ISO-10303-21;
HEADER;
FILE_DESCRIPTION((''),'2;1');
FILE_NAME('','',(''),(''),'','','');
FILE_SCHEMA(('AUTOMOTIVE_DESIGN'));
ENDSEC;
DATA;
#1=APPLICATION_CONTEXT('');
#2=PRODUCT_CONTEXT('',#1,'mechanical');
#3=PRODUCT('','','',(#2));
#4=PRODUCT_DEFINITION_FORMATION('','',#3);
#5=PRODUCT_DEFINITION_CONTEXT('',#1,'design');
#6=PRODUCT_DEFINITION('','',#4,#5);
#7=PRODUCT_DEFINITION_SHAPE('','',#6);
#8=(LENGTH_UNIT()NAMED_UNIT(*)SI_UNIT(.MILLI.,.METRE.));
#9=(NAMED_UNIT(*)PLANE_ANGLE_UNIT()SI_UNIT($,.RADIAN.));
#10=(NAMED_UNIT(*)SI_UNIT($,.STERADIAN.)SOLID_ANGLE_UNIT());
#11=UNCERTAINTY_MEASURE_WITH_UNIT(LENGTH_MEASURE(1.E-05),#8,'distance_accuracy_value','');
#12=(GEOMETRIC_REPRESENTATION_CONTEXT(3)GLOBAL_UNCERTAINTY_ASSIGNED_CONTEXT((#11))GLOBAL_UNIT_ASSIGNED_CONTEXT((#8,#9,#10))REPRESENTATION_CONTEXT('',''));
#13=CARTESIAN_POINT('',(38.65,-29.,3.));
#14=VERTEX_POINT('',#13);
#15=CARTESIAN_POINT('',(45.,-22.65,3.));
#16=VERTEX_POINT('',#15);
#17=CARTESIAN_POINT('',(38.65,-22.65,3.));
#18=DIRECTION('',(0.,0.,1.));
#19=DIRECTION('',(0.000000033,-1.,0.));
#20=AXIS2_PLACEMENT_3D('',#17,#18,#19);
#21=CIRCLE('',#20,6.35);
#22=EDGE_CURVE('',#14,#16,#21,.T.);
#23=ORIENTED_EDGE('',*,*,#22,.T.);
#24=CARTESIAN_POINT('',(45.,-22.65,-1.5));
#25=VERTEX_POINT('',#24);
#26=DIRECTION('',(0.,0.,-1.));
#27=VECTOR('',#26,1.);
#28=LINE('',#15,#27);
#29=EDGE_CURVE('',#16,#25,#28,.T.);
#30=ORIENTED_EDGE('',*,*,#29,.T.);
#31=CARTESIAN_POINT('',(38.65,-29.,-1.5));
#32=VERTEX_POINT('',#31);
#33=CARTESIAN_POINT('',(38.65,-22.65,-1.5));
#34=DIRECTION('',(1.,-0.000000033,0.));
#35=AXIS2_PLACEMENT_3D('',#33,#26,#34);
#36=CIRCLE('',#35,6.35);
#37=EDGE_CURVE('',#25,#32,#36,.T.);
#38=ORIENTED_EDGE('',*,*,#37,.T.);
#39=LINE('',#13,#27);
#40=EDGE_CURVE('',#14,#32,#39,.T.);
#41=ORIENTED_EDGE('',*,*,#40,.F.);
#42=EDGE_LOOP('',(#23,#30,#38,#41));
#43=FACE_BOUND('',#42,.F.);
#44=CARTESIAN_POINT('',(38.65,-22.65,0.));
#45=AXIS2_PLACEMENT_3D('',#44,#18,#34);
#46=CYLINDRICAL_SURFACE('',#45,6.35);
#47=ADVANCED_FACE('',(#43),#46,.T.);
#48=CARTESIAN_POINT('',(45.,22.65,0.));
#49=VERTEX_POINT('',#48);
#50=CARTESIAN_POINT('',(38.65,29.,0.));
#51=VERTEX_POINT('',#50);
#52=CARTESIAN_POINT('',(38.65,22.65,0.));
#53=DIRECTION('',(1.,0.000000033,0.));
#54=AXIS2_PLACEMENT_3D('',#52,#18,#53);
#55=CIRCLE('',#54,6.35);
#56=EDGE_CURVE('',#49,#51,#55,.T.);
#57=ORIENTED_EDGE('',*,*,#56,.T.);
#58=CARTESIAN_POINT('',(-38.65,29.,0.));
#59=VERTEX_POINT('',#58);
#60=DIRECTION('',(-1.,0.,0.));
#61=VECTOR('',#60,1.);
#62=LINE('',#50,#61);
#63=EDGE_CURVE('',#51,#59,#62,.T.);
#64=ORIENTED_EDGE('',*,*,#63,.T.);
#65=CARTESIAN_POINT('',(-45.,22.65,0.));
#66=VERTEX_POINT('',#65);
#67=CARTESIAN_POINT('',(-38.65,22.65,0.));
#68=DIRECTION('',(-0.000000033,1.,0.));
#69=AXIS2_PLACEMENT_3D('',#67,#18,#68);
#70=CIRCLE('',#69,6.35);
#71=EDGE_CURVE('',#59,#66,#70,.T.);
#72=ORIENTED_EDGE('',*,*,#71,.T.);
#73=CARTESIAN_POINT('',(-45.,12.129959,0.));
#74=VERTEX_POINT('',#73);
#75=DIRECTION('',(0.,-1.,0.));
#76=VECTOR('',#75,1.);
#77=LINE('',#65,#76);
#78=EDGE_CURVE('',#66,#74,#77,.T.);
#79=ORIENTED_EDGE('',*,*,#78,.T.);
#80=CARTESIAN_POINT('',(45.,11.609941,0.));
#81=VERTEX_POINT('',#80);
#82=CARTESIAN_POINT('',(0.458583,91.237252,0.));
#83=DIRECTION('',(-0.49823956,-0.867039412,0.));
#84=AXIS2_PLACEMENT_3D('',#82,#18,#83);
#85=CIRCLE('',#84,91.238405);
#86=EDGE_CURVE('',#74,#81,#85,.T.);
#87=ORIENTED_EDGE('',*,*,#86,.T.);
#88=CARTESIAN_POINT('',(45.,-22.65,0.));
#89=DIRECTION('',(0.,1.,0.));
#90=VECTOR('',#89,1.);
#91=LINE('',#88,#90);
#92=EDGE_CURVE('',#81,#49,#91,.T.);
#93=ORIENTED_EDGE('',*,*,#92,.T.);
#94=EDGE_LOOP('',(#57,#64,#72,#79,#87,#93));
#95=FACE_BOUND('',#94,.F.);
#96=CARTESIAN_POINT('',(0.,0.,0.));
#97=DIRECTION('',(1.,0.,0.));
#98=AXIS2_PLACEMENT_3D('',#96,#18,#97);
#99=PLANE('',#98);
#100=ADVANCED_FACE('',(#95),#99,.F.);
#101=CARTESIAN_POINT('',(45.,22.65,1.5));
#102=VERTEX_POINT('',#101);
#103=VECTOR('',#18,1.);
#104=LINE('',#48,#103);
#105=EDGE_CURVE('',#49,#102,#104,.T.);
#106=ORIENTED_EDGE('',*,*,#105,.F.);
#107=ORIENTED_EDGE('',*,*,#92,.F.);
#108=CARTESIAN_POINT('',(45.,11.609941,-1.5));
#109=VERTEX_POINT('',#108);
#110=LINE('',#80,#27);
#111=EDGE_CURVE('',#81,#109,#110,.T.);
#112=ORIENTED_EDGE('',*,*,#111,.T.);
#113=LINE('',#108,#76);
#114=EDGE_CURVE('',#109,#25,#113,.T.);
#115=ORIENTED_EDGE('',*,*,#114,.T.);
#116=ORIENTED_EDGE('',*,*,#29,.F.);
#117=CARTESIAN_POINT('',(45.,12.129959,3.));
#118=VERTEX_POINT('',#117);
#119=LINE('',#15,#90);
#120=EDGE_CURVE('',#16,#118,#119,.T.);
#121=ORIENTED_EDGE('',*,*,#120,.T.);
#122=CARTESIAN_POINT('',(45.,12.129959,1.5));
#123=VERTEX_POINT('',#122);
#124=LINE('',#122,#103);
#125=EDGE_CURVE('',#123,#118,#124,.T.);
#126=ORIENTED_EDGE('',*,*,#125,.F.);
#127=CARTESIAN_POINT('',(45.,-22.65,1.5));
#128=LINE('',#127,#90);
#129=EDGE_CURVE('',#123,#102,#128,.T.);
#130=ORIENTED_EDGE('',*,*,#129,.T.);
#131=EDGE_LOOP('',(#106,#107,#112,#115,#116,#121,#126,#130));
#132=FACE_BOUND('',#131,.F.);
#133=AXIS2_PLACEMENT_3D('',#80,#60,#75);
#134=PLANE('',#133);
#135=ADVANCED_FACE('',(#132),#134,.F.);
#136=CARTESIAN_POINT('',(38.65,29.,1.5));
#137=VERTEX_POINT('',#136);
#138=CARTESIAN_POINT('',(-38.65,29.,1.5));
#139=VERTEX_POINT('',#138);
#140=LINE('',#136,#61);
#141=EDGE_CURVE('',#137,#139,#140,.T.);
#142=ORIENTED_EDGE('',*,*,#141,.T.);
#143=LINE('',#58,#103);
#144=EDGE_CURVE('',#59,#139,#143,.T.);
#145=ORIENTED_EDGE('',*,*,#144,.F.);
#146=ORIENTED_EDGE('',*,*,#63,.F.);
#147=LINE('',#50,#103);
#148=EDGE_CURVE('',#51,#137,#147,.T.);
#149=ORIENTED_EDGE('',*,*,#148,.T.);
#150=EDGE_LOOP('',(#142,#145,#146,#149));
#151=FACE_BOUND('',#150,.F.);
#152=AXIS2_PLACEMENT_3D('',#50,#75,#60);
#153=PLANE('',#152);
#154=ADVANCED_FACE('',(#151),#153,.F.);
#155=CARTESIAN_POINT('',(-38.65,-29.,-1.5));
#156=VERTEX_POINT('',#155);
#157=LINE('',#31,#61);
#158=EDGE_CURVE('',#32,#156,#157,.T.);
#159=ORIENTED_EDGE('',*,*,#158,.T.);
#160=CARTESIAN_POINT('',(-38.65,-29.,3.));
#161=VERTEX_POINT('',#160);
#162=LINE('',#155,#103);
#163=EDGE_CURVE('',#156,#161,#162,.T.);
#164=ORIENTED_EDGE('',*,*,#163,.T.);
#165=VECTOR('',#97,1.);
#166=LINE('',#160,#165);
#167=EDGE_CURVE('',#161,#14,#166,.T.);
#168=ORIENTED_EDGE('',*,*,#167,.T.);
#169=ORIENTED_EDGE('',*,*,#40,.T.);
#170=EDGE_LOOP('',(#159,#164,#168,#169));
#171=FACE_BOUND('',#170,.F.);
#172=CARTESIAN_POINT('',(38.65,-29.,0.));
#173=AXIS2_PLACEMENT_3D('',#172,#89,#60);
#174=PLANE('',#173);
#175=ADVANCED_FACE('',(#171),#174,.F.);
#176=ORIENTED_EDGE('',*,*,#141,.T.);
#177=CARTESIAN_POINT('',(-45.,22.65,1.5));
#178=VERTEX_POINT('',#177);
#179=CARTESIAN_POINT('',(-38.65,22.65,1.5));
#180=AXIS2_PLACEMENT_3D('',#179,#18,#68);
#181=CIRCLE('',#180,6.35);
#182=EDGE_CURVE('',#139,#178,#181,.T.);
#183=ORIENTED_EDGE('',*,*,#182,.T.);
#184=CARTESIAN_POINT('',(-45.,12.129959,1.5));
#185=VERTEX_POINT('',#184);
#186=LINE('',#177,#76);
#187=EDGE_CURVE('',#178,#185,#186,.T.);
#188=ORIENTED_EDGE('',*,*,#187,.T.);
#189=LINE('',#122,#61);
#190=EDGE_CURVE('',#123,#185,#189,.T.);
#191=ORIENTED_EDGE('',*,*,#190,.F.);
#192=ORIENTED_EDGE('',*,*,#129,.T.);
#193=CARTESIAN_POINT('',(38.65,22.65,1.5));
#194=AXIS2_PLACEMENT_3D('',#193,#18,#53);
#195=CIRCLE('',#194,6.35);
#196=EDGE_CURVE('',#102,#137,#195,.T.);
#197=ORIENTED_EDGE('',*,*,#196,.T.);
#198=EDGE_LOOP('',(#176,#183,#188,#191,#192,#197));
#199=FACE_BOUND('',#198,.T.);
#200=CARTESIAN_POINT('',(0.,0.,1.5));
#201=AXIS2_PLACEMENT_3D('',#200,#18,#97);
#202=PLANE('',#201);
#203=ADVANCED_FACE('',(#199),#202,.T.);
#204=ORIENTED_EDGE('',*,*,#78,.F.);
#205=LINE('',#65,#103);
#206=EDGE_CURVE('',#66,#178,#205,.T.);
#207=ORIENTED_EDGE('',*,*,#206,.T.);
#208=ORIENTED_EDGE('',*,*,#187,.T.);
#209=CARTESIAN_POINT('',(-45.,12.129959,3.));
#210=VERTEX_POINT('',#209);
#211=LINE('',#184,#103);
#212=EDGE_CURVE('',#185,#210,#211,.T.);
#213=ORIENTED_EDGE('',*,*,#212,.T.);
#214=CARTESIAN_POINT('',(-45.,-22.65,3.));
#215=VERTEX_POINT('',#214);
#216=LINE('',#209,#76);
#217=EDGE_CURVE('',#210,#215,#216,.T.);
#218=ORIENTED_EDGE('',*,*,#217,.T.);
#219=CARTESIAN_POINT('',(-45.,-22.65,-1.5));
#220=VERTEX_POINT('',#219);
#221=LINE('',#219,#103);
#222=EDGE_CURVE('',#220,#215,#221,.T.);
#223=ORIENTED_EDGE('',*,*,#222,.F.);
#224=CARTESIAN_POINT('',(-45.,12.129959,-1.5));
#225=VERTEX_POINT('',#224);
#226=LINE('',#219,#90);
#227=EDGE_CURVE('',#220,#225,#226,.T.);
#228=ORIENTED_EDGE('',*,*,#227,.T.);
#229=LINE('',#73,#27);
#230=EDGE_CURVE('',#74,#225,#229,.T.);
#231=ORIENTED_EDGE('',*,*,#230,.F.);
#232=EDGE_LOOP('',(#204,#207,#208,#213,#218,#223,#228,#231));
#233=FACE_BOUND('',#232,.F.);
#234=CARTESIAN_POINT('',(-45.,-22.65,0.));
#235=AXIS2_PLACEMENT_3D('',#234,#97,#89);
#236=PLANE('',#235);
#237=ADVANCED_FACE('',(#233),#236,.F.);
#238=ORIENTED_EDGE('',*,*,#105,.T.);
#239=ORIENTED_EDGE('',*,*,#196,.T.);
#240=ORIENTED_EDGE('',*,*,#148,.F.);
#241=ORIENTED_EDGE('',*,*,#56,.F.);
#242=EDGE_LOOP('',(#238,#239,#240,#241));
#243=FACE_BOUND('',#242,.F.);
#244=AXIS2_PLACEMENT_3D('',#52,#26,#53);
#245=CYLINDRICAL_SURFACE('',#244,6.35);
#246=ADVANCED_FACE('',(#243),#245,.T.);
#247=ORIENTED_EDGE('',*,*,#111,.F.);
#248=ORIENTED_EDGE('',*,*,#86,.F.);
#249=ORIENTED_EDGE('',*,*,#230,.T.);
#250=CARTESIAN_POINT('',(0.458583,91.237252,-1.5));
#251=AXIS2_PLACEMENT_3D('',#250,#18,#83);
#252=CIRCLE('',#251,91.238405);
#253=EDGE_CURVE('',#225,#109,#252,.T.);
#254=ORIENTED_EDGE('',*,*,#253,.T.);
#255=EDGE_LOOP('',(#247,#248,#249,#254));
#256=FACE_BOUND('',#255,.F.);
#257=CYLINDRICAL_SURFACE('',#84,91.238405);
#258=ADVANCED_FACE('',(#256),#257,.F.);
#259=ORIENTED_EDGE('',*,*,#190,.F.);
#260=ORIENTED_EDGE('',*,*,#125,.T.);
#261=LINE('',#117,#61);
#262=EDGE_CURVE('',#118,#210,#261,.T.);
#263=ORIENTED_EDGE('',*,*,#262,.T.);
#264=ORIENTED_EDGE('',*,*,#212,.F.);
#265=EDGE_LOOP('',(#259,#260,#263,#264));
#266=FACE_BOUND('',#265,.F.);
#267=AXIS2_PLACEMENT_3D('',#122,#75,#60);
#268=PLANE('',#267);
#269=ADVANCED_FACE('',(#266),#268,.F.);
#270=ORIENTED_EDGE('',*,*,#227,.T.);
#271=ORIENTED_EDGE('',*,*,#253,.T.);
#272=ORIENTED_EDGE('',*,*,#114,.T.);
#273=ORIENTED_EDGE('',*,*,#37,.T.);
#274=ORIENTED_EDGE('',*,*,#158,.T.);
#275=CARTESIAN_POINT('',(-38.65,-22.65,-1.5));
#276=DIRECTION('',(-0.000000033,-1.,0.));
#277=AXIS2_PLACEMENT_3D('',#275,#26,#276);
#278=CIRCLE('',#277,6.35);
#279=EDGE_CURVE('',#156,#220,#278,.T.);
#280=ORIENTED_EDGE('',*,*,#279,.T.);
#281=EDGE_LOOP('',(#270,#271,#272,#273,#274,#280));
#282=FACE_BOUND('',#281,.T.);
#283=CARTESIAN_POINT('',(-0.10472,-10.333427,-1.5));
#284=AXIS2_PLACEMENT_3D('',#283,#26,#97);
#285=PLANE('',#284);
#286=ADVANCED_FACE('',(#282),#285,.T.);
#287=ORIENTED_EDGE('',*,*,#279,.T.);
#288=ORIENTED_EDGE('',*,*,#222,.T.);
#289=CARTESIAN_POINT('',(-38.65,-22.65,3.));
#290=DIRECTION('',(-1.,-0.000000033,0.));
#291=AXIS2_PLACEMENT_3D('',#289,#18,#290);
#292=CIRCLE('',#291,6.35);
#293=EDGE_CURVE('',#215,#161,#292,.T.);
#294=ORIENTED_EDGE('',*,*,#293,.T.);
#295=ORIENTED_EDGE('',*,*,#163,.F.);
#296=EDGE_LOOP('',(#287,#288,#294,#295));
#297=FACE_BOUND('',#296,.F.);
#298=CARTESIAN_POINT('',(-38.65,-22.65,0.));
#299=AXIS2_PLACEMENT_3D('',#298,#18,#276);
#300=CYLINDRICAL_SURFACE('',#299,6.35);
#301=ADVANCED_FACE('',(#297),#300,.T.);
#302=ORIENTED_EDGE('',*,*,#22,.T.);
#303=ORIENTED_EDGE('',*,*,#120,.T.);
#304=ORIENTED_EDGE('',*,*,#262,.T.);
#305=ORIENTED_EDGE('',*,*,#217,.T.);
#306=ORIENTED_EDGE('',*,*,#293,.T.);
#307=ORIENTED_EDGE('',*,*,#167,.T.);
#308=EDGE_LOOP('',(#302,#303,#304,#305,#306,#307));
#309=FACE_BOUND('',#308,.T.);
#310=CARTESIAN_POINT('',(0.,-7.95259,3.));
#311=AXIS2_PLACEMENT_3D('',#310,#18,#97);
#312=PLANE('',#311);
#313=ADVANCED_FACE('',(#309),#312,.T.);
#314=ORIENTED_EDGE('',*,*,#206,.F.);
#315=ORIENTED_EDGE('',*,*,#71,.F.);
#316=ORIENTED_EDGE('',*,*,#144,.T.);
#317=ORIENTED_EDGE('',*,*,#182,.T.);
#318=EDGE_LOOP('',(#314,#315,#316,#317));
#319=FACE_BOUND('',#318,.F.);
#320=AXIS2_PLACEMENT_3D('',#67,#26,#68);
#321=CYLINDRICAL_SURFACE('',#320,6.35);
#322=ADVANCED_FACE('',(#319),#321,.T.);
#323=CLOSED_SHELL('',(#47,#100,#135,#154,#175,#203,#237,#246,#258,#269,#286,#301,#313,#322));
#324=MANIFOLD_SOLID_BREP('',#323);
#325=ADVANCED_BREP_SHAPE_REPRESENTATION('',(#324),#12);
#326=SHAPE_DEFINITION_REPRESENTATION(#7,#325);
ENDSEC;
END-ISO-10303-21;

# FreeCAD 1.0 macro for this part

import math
import FreeCAD as App
import Part
import Sketcher

doc = App.newDocument("Part")
params = doc.addObject("Spreadsheet::Sheet", "Params")
for row, (alias, value) in enumerate([
    ("sketch1_radius", "6.35 mm"),
    ("sketch1_width", "77.3 mm"),
    ("sketch1_height", "45.3 mm"),
    ("pad1_length", "1.5 mm"),
    ("sketch2_width", "90 mm"),
    ("sketch2_radius", "6.35 mm"),
    ("pad2_length", "1.5 mm"),
    ("sketch3_radius", "6.35 mm"),
    ("sketch3_width", "77.3 mm"),
    ("pad3_length", "1.5 mm"),
], start=1):
    params.set(f"A{row}", alias)
    params.set(f"B{row}", "=" + value)
    params.setAlias(f"B{row}", alias)

body = doc.addObject("PartDesign::Body", "Body")

sketch1 = body.newObject("Sketcher::SketchObject", "Sketch")
sketch1.AttachmentSupport = (doc.getObject("XY_Plane"), [""])
sketch1.MapMode = "FlatFace"
sketch1.addGeometry([
    Part.LineSegment(App.Vector(-39, -29, 0), App.Vector(39, -29, 0)),
    Part.ArcOfCircle(Part.Circle(App.Vector(39, -23, 0), App.Vector(0, 0, 1), 6), math.radians(-90), math.radians(0)),
    Part.LineSegment(App.Vector(45, -23, 0), App.Vector(45, 23, 0)),
    Part.ArcOfCircle(Part.Circle(App.Vector(39, 23, 0), App.Vector(0, 0, 1), 6), math.radians(0), math.radians(90)),
    Part.LineSegment(App.Vector(39, 29, 0), App.Vector(-39, 29, 0)),
    Part.ArcOfCircle(Part.Circle(App.Vector(-39, 23, 0), App.Vector(0, 0, 1), 6), math.radians(90), math.radians(180)),
    Part.LineSegment(App.Vector(-45, 23, 0), App.Vector(-45, -23, 0)),
    Part.ArcOfCircle(Part.Circle(App.Vector(-39, -23, 0), App.Vector(0, 0, 1), 6), math.radians(-180), math.radians(-90)),
], False)
sketch1.addConstraint([
    Sketcher.Constraint("Tangent", 0, 2, 1, 1),
    Sketcher.Constraint("Tangent", 1, 2, 2, 1),
    Sketcher.Constraint("Tangent", 2, 2, 3, 1),
    Sketcher.Constraint("Tangent", 3, 2, 4, 1),
    Sketcher.Constraint("Tangent", 4, 2, 5, 1),
    Sketcher.Constraint("Tangent", 5, 2, 6, 1),
    Sketcher.Constraint("Tangent", 6, 2, 7, 1),
    Sketcher.Constraint("Tangent", 7, 2, 0, 1),
    Sketcher.Constraint("Horizontal", 0),
    Sketcher.Constraint("Vertical", 2),
    Sketcher.Constraint("Horizontal", 4),
    Sketcher.Constraint("Vertical", 6),
    Sketcher.Constraint("Equal", 1, 3),
    Sketcher.Constraint("Equal", 3, 5),
    Sketcher.Constraint("Equal", 5, 7),
    Sketcher.Constraint("Symmetric", 1, 3, 5, 3, -1, 1),
    Sketcher.Constraint("Radius", 1, 6.35),
    Sketcher.Constraint("DistanceX", 0, 1, 0, 2, 77.3),
    Sketcher.Constraint("DistanceY", 2, 1, 2, 2, 45.3),
])
sketch1.setExpression("Constraints[16]", "Params.sketch1_radius")
sketch1.setExpression("Constraints[17]", "Params.sketch1_width")
sketch1.setExpression("Constraints[18]", "Params.sketch1_height")
pad1 = body.newObject("PartDesign::Pad", "Pad")
pad1.Profile = sketch1
pad1.setExpression("Length", "Params.pad1_length")

sketch2 = body.newObject("Sketcher::SketchObject", "Sketch001")
sketch2.AttachmentSupport = (doc.getObject("XY_Plane"), [""])
sketch2.MapMode = "FlatFace"
sketch2.AttachmentOffset = App.Placement(App.Vector(0, 0, 1.5), App.Rotation())
sketch2.addGeometry([
    Part.ArcOfCircle(Part.Circle(App.Vector(39, -23, 0), App.Vector(0, 0, 1), 6), math.radians(-90), math.radians(0)),
    Part.LineSegment(App.Vector(45, -23, 0), App.Vector(45, 12, 0)),
    Part.LineSegment(App.Vector(45, 12, 0), App.Vector(-45, 12, 0)),
    Part.LineSegment(App.Vector(-45, 12, 0), App.Vector(-45, -23, 0)),
    Part.ArcOfCircle(Part.Circle(App.Vector(-39, -23, 0), App.Vector(0, 0, 1), 6), math.radians(-180), math.radians(-90)),
    Part.LineSegment(App.Vector(-39, -29, 0), App.Vector(39, -29, 0)),
], False)
sketch2.addConstraint([
    Sketcher.Constraint("Tangent", 0, 2, 1, 1),
    Sketcher.Constraint("Coincident", 1, 2, 2, 1),
    Sketcher.Constraint("Coincident", 2, 2, 3, 1),
    Sketcher.Constraint("Tangent", 3, 2, 4, 1),
    Sketcher.Constraint("Tangent", 4, 2, 5, 1),
    Sketcher.Constraint("Tangent", 5, 2, 0, 1),
    Sketcher.Constraint("Vertical", 1),
    Sketcher.Constraint("Horizontal", 2),
    Sketcher.Constraint("Vertical", 3),
    Sketcher.Constraint("Horizontal", 5),
    Sketcher.Constraint("Equal", 0, 4),
    Sketcher.Constraint("DistanceX", 2, 2, 2, 1, 90.0),
    Sketcher.Constraint("Radius", 0, 6.35),
    Sketcher.Constraint("DistanceX", -1, 1, 0, 2, 45.0),
    Sketcher.Constraint("DistanceY", 4, 2, -1, 1, 29.0),
    Sketcher.Constraint("DistanceY", 1, 1, 1, 2, 34.779959),
])
sketch2.setExpression("Constraints[11]", "Params.sketch2_width")
sketch2.setExpression("Constraints[12]", "Params.sketch2_radius")
pad2 = body.newObject("PartDesign::Pad", "Pad001")
pad2.Profile = sketch2
pad2.setExpression("Length", "Params.pad2_length")

sketch3 = body.newObject("Sketcher::SketchObject", "Sketch002")
sketch3.AttachmentSupport = (doc.getObject("XY_Plane"), [""])
sketch3.MapMode = "FlatFace"
sketch3.addGeometry([
    Part.ArcOfCircle(Part.Circle(App.Vector(0, 91, 0), App.Vector(0, 0, 1), 91), math.radians(-120), math.radians(-61)),
    Part.LineSegment(App.Vector(45, 12, 0), App.Vector(45, -23, 0)),
    Part.ArcOfCircle(Part.Circle(App.Vector(39, -23, 0), App.Vector(0, 0, 1), 6), math.radians(-90), math.radians(0)),
    Part.LineSegment(App.Vector(39, -29, 0), App.Vector(-39, -29, 0)),
    Part.ArcOfCircle(Part.Circle(App.Vector(-39, -23, 0), App.Vector(0, 0, 1), 6), math.radians(-180), math.radians(-90)),
    Part.LineSegment(App.Vector(-45, -23, 0), App.Vector(-45, 12, 0)),
], False)
sketch3.addConstraint([
    Sketcher.Constraint("Coincident", 0, 2, 1, 1),
    Sketcher.Constraint("Tangent", 1, 2, 2, 2),
    Sketcher.Constraint("Tangent", 2, 1, 3, 1),
    Sketcher.Constraint("Tangent", 3, 2, 4, 2),
    Sketcher.Constraint("Tangent", 4, 1, 5, 1),
    Sketcher.Constraint("Coincident", 5, 2, 0, 1),
    Sketcher.Constraint("Vertical", 1),
    Sketcher.Constraint("Horizontal", 3),
    Sketcher.Constraint("Vertical", 5),
    Sketcher.Constraint("Equal", 2, 4),
    Sketcher.Constraint("Radius", 2, 6.35),
    Sketcher.Constraint("DistanceX", 3, 2, 3, 1, 77.3),
    Sketcher.Constraint("DistanceX", -1, 1, 0, 2, 45.0),
    Sketcher.Constraint("DistanceY", 2, 1, -1, 1, 29.0),
    Sketcher.Constraint("Radius", 0, 91.238405),
    Sketcher.Constraint("DistanceY", 1, 2, 1, 1, 34.259941),
    Sketcher.Constraint("DistanceY", 5, 1, 5, 2, 34.779959),
])
sketch3.setExpression("Constraints[10]", "Params.sketch3_radius")
sketch3.setExpression("Constraints[11]", "Params.sketch3_width")
pad3 = body.newObject("PartDesign::Pad", "Pad002")
pad3.Profile = sketch3
pad3.setExpression("Length", "Params.pad3_length")
pad3.Reversed = True

doc.recompute()
